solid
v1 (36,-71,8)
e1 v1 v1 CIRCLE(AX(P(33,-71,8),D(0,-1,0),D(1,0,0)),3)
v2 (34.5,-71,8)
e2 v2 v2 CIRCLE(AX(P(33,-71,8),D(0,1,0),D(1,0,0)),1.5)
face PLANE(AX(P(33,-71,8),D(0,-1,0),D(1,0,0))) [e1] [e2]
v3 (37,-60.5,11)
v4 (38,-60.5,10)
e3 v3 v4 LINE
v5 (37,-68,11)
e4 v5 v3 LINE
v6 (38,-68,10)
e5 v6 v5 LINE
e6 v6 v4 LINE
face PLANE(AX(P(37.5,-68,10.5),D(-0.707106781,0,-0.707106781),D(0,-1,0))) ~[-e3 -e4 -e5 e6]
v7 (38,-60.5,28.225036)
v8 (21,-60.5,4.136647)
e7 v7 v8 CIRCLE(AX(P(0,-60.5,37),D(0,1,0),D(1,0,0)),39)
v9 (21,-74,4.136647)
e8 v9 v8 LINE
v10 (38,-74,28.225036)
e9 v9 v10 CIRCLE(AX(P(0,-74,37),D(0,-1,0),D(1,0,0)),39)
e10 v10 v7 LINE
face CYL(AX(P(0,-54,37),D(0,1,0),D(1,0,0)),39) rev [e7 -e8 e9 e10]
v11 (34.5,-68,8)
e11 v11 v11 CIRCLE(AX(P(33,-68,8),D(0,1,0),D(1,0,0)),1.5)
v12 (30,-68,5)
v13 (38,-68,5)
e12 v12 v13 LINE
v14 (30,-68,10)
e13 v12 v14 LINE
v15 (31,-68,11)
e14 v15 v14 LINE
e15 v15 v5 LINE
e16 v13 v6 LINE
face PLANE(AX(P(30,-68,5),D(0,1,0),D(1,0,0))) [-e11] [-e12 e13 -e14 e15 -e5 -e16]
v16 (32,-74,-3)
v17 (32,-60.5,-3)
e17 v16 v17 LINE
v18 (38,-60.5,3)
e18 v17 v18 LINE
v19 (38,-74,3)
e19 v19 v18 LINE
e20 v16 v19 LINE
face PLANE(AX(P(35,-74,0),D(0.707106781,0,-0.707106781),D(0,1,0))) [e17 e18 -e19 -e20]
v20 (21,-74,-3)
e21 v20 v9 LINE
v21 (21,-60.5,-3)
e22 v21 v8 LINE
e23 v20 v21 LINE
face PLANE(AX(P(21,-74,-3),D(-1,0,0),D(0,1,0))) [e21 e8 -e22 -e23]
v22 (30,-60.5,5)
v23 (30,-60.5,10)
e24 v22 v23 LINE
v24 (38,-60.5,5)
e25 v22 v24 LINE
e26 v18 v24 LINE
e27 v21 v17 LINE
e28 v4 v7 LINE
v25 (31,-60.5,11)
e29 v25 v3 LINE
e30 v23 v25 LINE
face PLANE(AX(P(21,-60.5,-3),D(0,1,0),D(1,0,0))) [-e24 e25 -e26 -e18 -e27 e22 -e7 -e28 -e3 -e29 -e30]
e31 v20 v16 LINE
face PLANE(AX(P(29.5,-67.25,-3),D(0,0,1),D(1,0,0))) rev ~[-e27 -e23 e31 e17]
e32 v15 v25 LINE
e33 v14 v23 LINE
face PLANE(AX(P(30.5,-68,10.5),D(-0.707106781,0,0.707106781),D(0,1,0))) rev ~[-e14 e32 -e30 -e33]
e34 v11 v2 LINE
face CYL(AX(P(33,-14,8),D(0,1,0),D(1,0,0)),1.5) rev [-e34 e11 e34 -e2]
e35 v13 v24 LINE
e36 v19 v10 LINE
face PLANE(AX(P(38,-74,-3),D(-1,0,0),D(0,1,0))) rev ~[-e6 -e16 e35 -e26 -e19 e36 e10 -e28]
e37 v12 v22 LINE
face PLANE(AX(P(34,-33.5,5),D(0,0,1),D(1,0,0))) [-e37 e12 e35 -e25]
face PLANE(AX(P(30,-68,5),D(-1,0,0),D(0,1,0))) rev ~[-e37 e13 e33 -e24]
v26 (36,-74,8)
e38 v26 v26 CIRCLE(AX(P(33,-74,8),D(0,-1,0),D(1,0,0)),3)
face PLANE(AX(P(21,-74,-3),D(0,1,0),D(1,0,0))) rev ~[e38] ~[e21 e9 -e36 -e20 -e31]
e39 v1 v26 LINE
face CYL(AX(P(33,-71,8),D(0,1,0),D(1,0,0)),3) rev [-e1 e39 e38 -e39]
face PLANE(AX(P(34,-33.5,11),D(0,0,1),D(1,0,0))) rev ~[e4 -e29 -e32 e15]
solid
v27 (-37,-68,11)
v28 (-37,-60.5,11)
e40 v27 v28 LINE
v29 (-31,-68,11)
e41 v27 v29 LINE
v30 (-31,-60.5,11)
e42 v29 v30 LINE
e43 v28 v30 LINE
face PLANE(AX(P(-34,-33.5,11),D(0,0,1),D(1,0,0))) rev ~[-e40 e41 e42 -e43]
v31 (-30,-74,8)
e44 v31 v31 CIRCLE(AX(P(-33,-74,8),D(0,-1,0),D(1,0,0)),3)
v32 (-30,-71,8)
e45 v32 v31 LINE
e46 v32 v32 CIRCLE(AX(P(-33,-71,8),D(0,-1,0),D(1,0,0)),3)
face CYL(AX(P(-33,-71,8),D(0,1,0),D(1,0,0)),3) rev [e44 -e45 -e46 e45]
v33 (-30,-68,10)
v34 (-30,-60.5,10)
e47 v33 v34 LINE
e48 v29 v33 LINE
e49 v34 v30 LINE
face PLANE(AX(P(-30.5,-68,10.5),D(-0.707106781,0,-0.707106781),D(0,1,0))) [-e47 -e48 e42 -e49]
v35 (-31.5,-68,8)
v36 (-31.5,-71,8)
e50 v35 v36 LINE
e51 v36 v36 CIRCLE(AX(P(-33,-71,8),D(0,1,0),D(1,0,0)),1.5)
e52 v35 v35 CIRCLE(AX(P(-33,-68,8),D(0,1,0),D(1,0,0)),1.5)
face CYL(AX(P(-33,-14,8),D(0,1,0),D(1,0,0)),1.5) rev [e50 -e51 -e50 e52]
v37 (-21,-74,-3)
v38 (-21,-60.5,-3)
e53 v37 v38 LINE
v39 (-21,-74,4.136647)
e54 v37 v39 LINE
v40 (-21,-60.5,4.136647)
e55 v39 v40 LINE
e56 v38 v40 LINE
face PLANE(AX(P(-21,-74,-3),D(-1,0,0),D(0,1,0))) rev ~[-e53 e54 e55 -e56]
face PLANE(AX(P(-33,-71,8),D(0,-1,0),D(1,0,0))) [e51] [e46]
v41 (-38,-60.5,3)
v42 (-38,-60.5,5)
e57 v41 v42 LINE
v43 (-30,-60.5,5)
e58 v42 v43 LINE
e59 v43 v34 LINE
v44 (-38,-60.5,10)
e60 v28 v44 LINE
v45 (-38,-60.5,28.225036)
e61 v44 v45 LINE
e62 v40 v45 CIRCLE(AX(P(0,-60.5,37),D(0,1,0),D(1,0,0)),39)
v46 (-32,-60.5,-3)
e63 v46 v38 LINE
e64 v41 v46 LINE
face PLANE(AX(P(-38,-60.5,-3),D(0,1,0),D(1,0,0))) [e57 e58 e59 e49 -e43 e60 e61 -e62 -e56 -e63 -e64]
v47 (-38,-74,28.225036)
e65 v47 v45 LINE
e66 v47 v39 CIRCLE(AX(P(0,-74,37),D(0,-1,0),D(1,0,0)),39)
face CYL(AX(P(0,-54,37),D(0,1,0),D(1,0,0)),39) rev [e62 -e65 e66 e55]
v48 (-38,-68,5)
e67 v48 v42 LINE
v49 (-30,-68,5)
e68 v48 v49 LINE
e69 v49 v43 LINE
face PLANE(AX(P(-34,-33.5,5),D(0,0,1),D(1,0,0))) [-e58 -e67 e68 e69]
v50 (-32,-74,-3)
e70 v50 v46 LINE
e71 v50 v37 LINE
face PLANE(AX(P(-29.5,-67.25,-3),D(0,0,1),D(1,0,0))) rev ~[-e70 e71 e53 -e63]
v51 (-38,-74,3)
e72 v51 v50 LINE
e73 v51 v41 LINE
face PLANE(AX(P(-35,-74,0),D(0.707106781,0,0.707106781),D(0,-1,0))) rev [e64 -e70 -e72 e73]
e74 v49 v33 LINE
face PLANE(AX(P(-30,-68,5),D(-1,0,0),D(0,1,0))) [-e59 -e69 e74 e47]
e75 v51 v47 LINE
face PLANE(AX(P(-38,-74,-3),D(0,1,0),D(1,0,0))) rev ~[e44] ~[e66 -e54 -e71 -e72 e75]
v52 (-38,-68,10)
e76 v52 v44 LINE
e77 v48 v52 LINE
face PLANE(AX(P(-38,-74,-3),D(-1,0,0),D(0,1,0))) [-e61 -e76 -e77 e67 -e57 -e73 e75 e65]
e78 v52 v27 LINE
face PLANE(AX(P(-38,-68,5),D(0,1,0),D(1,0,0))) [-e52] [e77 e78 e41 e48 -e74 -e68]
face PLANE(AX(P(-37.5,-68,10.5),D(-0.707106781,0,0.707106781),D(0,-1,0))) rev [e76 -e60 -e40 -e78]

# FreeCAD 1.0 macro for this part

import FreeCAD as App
import Part
import Sketcher

V = App.Vector


def edges_at(feature, points):
    """Names of the edges that pass closest to the given points."""
    edges = feature.Shape.Edges
    near = lambda p: min(range(len(edges)), key=lambda i: edges[i].distToShape(Part.Vertex(*p))[0])
    return sorted({f"Edge{near(p) + 1}" for p in points})


def add_polygon(sketch, points):
    """Adds a closed chain of lines whose ends are joined by coincident constraints."""
    first, n = sketch.GeometryCount, len(points)
    for a, b in zip(points, points[1:] + points[:1]):
        sketch.addGeometry(Part.LineSegment(App.Vector(*a, 0), App.Vector(*b, 0)), False)
    for i in range(n):
        sketch.addConstraint(Sketcher.Constraint("Coincident", first + i, 2, first + (i + 1) % n, 1))

doc = App.newDocument("Part")
body = doc.addObject("PartDesign::Body", "Body")

# Sketch on XZ plane
sketch1 = body.newObject("Sketcher::SketchObject", "Sketch")
sketch1.AttachmentSupport = (doc.getObject("XZ_Plane"), [""])
sketch1.MapMode = "FlatFace"
sketch1.AttachmentOffset = App.Placement(V(0, 0, 10), App.Rotation())
sketch1.addGeometry(Part.Circle(V(33, 8, 0), V(0, 0, 1), 1.5), False)
sketch1.addConstraint([
    Sketcher.Constraint("Diameter", 0, 3.0),
    Sketcher.Constraint("DistanceX", -1, 1, 0, 3, 33.0),
    Sketcher.Constraint("DistanceY", -1, 1, 0, 3, 8.0),
])
pad1 = body.newObject("PartDesign::Pad", "Pad")
pad1.Profile = sketch1
pad1.Length = 60
body2 = doc.addObject("PartDesign::Body", "Body001")
body2.AllowCompound = True

# Sketch on XZ plane
sketch2 = body2.newObject("Sketcher::SketchObject", "Sketch001")
sketch2.AttachmentSupport = (doc.getObject("XZ_Plane001"), [""])
sketch2.MapMode = "FlatFace"
sketch2.AttachmentOffset = App.Placement(V(0, 0, 10), App.Rotation())
sketch2.addGeometry(Part.Circle(V(-33, 8, 0), V(0, 0, 1), 1.5), False)
sketch2.addConstraint([
    Sketcher.Constraint("Diameter", 0, 3.0),
    Sketcher.Constraint("DistanceX", 0, 3, -1, 1, 33.0),
    Sketcher.Constraint("DistanceY", -1, 1, 0, 3, 8.0),
])
pad2 = body2.newObject("PartDesign::Pad", "Pad001")
pad2.Profile = sketch2
pad2.Length = 60
doc.recompute()

boolean = body2.newObject("PartDesign::Boolean", "Boolean")
boolean.Type = "Fuse"
boolean.addObjects([body])
body3 = doc.addObject("PartDesign::Body", "Body002")
body3.AllowCompound = True
doc.recompute()

body2.Placement = App.Placement(V(0, -4, 0), App.Rotation(V(0, 0, 1), 0))
boolean2 = body3.newObject("PartDesign::Boolean", "Boolean001")
boolean2.Type = "Fuse"
boolean2.addObjects([body2])
body4 = doc.addObject("PartDesign::Body", "Body003")

# Sketch on XZ plane
sketch3 = body4.newObject("Sketcher::SketchObject", "Sketch002")
sketch3.AttachmentSupport = (doc.getObject("XZ_Plane003"), [""])
sketch3.MapMode = "FlatFace"
sketch3.AttachmentOffset = App.Placement(V(0, 0, 61), App.Rotation())
sketch3.addGeometry(Part.Circle(V(33, 8, 0), V(0, 0, 1), 3), False)
sketch3.addConstraint([
    Sketcher.Constraint("Diameter", 0, 6.0),
    Sketcher.Constraint("DistanceX", -1, 1, 0, 3, 33.0),
    Sketcher.Constraint("DistanceY", -1, 1, 0, 3, 8.0),
])
pad3 = body4.newObject("PartDesign::Pad", "Pad002")
pad3.Profile = sketch3
pad3.Length = 3
body5 = doc.addObject("PartDesign::Body", "Body004")
body5.AllowCompound = True

# Sketch on XZ plane
sketch4 = body5.newObject("Sketcher::SketchObject", "Sketch003")
sketch4.AttachmentSupport = (doc.getObject("XZ_Plane004"), [""])
sketch4.MapMode = "FlatFace"
sketch4.AttachmentOffset = App.Placement(V(0, 0, 61), App.Rotation())
sketch4.addGeometry(Part.Circle(V(-33, 8, 0), V(0, 0, 1), 3), False)
sketch4.addConstraint([
    Sketcher.Constraint("Diameter", 0, 6.0),
    Sketcher.Constraint("DistanceX", 0, 3, -1, 1, 33.0),
    Sketcher.Constraint("DistanceY", -1, 1, 0, 3, 8.0),
])
pad4 = body5.newObject("PartDesign::Pad", "Pad003")
pad4.Profile = sketch4
pad4.Length = 3
doc.recompute()

boolean3 = body5.newObject("PartDesign::Boolean", "Boolean002")
boolean3.Type = "Fuse"
boolean3.addObjects([body4])
body6 = doc.addObject("PartDesign::Body", "Body005")
body6.AllowCompound = True
doc.recompute()

body5.Placement = App.Placement(V(0, -10, 0), App.Rotation(V(0, 0, 1), 0))
boolean4 = body6.newObject("PartDesign::Boolean", "Boolean003")
boolean4.Type = "Fuse"
boolean4.addObjects([body5])
body7 = doc.addObject("PartDesign::Body", "Body006")

# Sketch on XZ plane
sketch5 = body7.newObject("Sketcher::SketchObject", "Sketch004")
sketch5.AttachmentSupport = (doc.getObject("XZ_Plane006"), [""])
sketch5.MapMode = "FlatFace"
sketch5.AttachmentOffset = App.Placement(V(0, 0, 54), App.Rotation())
sketch5.addGeometry(Part.Circle(V(0, 37, 0), V(0, 0, 1), 39), False)
sketch5.addConstraint([
    Sketcher.Constraint("PointOnObject", 0, 3, -2),
    Sketcher.Constraint("Diameter", 0, 78.0),
    Sketcher.Constraint("DistanceY", -1, 1, 0, 3, 37.0),
])
pad5 = body7.newObject("PartDesign::Pad", "Pad004")
pad5.Profile = sketch5
pad5.Length = 20
body8 = doc.addObject("PartDesign::Body", "Body007")

# Sketch on XY plane
sketch6 = body8.newObject("Sketcher::SketchObject", "Sketch005")
sketch6.AttachmentSupport = (doc.getObject("XY_Plane007"), [""])
sketch6.MapMode = "FlatFace"
sketch6.addGeometry(Part.Circle(V(0, 0, 0), V(0, 0, 1), 38), False)
sketch6.addConstraint([
    Sketcher.Constraint("Coincident", 0, 3, -1, 1),
    Sketcher.Constraint("Diameter", 0, 76.0),
])
pad6 = body8.newObject("PartDesign::Pad", "Pad005")
pad6.Profile = sketch6
pad6.Length = 16
body9 = doc.addObject("PartDesign::Body", "Body008")
body9.AllowCompound = True

# Sketch on XY plane
sketch7 = body9.newObject("Sketcher::SketchObject", "Sketch006")
sketch7.AttachmentSupport = (doc.getObject("XY_Plane008"), [""])
sketch7.MapMode = "FlatFace"
sketch7.AttachmentOffset = App.Placement(V(0, 0, 5), App.Rotation())
add_polygon(sketch7, [(-38, 1), (-38, -68), (-30, -68), (-30, 1)])  # lines 0-3
sketch7.addConstraint([
    Sketcher.Constraint("Vertical", 0),
    Sketcher.Constraint("Horizontal", 1),
    Sketcher.Constraint("Vertical", 2),
    Sketcher.Constraint("Horizontal", 3),
    Sketcher.Constraint("DistanceX", 1, 1, 1, 2, 8.0),
    Sketcher.Constraint("DistanceY", 0, 2, 0, 1, 69.0),
    Sketcher.Constraint("DistanceX", 0, 2, -1, 1, 38.0),
    Sketcher.Constraint("DistanceY", 0, 2, -1, 1, 68.0),
])
pad7 = body9.newObject("PartDesign::Pad", "Pad006")
pad7.Profile = sketch7
pad7.Length = 6
doc.recompute()

chamfer = body9.newObject("PartDesign::Chamfer", "Chamfer")
chamfer.Base = (pad7, edges_at(pad7, [(-38, -33.5, 11)]))
chamfer.Size = 1
doc.recompute()

chamfer2 = body9.newObject("PartDesign::Chamfer", "Chamfer001")
chamfer2.Base = (chamfer, edges_at(chamfer, [(-30, -33.5, 11)]))
chamfer2.Size = 1
doc.recompute()

boolean5 = body9.newObject("PartDesign::Boolean", "Boolean004")
boolean5.Type = "Cut"
boolean5.addObjects([body8])
body10 = doc.addObject("PartDesign::Body", "Body009")

# Sketch on XY plane
sketch8 = body10.newObject("Sketcher::SketchObject", "Sketch007")
sketch8.AttachmentSupport = (doc.getObject("XY_Plane009"), [""])
sketch8.MapMode = "FlatFace"
sketch8.addGeometry(Part.Circle(V(0, 0, 0), V(0, 0, 1), 38), False)
sketch8.addConstraint([
    Sketcher.Constraint("Coincident", 0, 3, -1, 1),
    Sketcher.Constraint("Diameter", 0, 76.0),
])
pad8 = body10.newObject("PartDesign::Pad", "Pad007")
pad8.Profile = sketch8
pad8.Length = 16
body11 = doc.addObject("PartDesign::Body", "Body010")
body11.AllowCompound = True

# Sketch on XY plane
sketch9 = body11.newObject("Sketcher::SketchObject", "Sketch008")
sketch9.AttachmentSupport = (doc.getObject("XY_Plane010"), [""])
sketch9.MapMode = "FlatFace"
sketch9.AttachmentOffset = App.Placement(V(0, 0, 5), App.Rotation())
add_polygon(sketch9, [(30, 1), (30, -68), (38, -68), (38, 1)])  # lines 0-3
sketch9.addConstraint([
    Sketcher.Constraint("Vertical", 0),
    Sketcher.Constraint("Horizontal", 1),
    Sketcher.Constraint("Vertical", 2),
    Sketcher.Constraint("Horizontal", 3),
    Sketcher.Constraint("DistanceX", 1, 1, 1, 2, 8.0),
    Sketcher.Constraint("DistanceY", 0, 2, 0, 1, 69.0),
    Sketcher.Constraint("DistanceX", -1, 1, 0, 2, 30.0),
    Sketcher.Constraint("DistanceY", 0, 2, -1, 1, 68.0),
])
pad9 = body11.newObject("PartDesign::Pad", "Pad008")
pad9.Profile = sketch9
pad9.Length = 6
doc.recompute()

chamfer3 = body11.newObject("PartDesign::Chamfer", "Chamfer002")
chamfer3.Base = (pad9, edges_at(pad9, [(38, -33.5, 11)]))
chamfer3.Size = 1
doc.recompute()

chamfer4 = body11.newObject("PartDesign::Chamfer", "Chamfer003")
chamfer4.Base = (chamfer3, edges_at(chamfer3, [(30, -33.5, 11)]))
chamfer4.Size = 1
doc.recompute()

boolean6 = body11.newObject("PartDesign::Boolean", "Boolean005")
boolean6.Type = "Cut"
boolean6.addObjects([body10])
doc.recompute()

boolean7 = body11.newObject("PartDesign::Boolean", "Boolean006")
boolean7.Type = "Fuse"
boolean7.addObjects([body9])
body12 = doc.addObject("PartDesign::Body", "Body011")

# Sketch on XY plane
sketch10 = body12.newObject("Sketcher::SketchObject", "Sketch009")
sketch10.AttachmentSupport = (doc.getObject("XY_Plane011"), [""])
sketch10.MapMode = "FlatFace"
sketch10.AttachmentOffset = App.Placement(V(0, 0, -3), App.Rotation())
add_polygon(sketch10, [(-38, -54), (-38, -68), (-21, -68), (-21, -54)])  # lines 0-3
sketch10.addConstraint([
    Sketcher.Constraint("Vertical", 0),
    Sketcher.Constraint("Horizontal", 1),
    Sketcher.Constraint("Vertical", 2),
    Sketcher.Constraint("Horizontal", 3),
    Sketcher.Constraint("DistanceX", 1, 1, 1, 2, 17.0),
    Sketcher.Constraint("DistanceY", 0, 2, 0, 1, 13.5),
    Sketcher.Constraint("DistanceX", 0, 2, -1, 1, 38.0),
    Sketcher.Constraint("DistanceY", 0, 2, -1, 1, 68.0),
])
pad10 = body12.newObject("PartDesign::Pad", "Pad009")
pad10.Profile = sketch10
pad10.Length = 40
body13 = doc.addObject("PartDesign::Body", "Body012")
body13.AllowCompound = True

# Sketch on XY plane
sketch11 = body13.newObject("Sketcher::SketchObject", "Sketch010")
sketch11.AttachmentSupport = (doc.getObject("XY_Plane012"), [""])
sketch11.MapMode = "FlatFace"
sketch11.AttachmentOffset = App.Placement(V(0, 0, -3), App.Rotation())
add_polygon(sketch11, [(21, -54), (21, -68), (38, -68), (38, -54)])  # lines 0-3
sketch11.addConstraint([
    Sketcher.Constraint("Vertical", 0),
    Sketcher.Constraint("Horizontal", 1),
    Sketcher.Constraint("Vertical", 2),
    Sketcher.Constraint("Horizontal", 3),
    Sketcher.Constraint("DistanceX", 1, 1, 1, 2, 17.0),
    Sketcher.Constraint("DistanceY", 0, 2, 0, 1, 13.5),
    Sketcher.Constraint("DistanceX", -1, 1, 0, 2, 21.0),
    Sketcher.Constraint("DistanceY", 0, 2, -1, 1, 68.0),
])
pad11 = body13.newObject("PartDesign::Pad", "Pad010")
pad11.Profile = sketch11
pad11.Length = 40
doc.recompute()

boolean8 = body13.newObject("PartDesign::Boolean", "Boolean007")
boolean8.Type = "Fuse"
boolean8.addObjects([body12])
body14 = doc.addObject("PartDesign::Body", "Body013")
body14.AllowCompound = True
doc.recompute()

body13.Placement = App.Placement(V(0, -6, 0), App.Rotation(V(0, 0, 1), 0))
boolean9 = body14.newObject("PartDesign::Boolean", "Boolean008")
boolean9.Type = "Fuse"
boolean9.addObjects([body13])
doc.recompute()

boolean10 = body14.newObject("PartDesign::Boolean", "Boolean009")
boolean10.Type = "Cut"
boolean10.addObjects([body11])
doc.recompute()

boolean11 = body14.newObject("PartDesign::Boolean", "Boolean010")
boolean11.Type = "Cut"
boolean11.addObjects([body7])
doc.recompute()

chamfer5 = body14.newObject("PartDesign::Chamfer", "Chamfer004")
chamfer5.Base = (boolean11, edges_at(boolean11, [(38, -67.25, -3), (-38, -67.25, -3)]))
chamfer5.Size = 6
doc.recompute()

boolean12 = body14.newObject("PartDesign::Boolean", "Boolean011")
boolean12.Type = "Cut"
boolean12.addObjects([body6])
doc.recompute()

boolean13 = body14.newObject("PartDesign::Boolean", "Boolean012")
boolean13.Type = "Cut"
boolean13.addObjects([body3])

doc.recompute()
